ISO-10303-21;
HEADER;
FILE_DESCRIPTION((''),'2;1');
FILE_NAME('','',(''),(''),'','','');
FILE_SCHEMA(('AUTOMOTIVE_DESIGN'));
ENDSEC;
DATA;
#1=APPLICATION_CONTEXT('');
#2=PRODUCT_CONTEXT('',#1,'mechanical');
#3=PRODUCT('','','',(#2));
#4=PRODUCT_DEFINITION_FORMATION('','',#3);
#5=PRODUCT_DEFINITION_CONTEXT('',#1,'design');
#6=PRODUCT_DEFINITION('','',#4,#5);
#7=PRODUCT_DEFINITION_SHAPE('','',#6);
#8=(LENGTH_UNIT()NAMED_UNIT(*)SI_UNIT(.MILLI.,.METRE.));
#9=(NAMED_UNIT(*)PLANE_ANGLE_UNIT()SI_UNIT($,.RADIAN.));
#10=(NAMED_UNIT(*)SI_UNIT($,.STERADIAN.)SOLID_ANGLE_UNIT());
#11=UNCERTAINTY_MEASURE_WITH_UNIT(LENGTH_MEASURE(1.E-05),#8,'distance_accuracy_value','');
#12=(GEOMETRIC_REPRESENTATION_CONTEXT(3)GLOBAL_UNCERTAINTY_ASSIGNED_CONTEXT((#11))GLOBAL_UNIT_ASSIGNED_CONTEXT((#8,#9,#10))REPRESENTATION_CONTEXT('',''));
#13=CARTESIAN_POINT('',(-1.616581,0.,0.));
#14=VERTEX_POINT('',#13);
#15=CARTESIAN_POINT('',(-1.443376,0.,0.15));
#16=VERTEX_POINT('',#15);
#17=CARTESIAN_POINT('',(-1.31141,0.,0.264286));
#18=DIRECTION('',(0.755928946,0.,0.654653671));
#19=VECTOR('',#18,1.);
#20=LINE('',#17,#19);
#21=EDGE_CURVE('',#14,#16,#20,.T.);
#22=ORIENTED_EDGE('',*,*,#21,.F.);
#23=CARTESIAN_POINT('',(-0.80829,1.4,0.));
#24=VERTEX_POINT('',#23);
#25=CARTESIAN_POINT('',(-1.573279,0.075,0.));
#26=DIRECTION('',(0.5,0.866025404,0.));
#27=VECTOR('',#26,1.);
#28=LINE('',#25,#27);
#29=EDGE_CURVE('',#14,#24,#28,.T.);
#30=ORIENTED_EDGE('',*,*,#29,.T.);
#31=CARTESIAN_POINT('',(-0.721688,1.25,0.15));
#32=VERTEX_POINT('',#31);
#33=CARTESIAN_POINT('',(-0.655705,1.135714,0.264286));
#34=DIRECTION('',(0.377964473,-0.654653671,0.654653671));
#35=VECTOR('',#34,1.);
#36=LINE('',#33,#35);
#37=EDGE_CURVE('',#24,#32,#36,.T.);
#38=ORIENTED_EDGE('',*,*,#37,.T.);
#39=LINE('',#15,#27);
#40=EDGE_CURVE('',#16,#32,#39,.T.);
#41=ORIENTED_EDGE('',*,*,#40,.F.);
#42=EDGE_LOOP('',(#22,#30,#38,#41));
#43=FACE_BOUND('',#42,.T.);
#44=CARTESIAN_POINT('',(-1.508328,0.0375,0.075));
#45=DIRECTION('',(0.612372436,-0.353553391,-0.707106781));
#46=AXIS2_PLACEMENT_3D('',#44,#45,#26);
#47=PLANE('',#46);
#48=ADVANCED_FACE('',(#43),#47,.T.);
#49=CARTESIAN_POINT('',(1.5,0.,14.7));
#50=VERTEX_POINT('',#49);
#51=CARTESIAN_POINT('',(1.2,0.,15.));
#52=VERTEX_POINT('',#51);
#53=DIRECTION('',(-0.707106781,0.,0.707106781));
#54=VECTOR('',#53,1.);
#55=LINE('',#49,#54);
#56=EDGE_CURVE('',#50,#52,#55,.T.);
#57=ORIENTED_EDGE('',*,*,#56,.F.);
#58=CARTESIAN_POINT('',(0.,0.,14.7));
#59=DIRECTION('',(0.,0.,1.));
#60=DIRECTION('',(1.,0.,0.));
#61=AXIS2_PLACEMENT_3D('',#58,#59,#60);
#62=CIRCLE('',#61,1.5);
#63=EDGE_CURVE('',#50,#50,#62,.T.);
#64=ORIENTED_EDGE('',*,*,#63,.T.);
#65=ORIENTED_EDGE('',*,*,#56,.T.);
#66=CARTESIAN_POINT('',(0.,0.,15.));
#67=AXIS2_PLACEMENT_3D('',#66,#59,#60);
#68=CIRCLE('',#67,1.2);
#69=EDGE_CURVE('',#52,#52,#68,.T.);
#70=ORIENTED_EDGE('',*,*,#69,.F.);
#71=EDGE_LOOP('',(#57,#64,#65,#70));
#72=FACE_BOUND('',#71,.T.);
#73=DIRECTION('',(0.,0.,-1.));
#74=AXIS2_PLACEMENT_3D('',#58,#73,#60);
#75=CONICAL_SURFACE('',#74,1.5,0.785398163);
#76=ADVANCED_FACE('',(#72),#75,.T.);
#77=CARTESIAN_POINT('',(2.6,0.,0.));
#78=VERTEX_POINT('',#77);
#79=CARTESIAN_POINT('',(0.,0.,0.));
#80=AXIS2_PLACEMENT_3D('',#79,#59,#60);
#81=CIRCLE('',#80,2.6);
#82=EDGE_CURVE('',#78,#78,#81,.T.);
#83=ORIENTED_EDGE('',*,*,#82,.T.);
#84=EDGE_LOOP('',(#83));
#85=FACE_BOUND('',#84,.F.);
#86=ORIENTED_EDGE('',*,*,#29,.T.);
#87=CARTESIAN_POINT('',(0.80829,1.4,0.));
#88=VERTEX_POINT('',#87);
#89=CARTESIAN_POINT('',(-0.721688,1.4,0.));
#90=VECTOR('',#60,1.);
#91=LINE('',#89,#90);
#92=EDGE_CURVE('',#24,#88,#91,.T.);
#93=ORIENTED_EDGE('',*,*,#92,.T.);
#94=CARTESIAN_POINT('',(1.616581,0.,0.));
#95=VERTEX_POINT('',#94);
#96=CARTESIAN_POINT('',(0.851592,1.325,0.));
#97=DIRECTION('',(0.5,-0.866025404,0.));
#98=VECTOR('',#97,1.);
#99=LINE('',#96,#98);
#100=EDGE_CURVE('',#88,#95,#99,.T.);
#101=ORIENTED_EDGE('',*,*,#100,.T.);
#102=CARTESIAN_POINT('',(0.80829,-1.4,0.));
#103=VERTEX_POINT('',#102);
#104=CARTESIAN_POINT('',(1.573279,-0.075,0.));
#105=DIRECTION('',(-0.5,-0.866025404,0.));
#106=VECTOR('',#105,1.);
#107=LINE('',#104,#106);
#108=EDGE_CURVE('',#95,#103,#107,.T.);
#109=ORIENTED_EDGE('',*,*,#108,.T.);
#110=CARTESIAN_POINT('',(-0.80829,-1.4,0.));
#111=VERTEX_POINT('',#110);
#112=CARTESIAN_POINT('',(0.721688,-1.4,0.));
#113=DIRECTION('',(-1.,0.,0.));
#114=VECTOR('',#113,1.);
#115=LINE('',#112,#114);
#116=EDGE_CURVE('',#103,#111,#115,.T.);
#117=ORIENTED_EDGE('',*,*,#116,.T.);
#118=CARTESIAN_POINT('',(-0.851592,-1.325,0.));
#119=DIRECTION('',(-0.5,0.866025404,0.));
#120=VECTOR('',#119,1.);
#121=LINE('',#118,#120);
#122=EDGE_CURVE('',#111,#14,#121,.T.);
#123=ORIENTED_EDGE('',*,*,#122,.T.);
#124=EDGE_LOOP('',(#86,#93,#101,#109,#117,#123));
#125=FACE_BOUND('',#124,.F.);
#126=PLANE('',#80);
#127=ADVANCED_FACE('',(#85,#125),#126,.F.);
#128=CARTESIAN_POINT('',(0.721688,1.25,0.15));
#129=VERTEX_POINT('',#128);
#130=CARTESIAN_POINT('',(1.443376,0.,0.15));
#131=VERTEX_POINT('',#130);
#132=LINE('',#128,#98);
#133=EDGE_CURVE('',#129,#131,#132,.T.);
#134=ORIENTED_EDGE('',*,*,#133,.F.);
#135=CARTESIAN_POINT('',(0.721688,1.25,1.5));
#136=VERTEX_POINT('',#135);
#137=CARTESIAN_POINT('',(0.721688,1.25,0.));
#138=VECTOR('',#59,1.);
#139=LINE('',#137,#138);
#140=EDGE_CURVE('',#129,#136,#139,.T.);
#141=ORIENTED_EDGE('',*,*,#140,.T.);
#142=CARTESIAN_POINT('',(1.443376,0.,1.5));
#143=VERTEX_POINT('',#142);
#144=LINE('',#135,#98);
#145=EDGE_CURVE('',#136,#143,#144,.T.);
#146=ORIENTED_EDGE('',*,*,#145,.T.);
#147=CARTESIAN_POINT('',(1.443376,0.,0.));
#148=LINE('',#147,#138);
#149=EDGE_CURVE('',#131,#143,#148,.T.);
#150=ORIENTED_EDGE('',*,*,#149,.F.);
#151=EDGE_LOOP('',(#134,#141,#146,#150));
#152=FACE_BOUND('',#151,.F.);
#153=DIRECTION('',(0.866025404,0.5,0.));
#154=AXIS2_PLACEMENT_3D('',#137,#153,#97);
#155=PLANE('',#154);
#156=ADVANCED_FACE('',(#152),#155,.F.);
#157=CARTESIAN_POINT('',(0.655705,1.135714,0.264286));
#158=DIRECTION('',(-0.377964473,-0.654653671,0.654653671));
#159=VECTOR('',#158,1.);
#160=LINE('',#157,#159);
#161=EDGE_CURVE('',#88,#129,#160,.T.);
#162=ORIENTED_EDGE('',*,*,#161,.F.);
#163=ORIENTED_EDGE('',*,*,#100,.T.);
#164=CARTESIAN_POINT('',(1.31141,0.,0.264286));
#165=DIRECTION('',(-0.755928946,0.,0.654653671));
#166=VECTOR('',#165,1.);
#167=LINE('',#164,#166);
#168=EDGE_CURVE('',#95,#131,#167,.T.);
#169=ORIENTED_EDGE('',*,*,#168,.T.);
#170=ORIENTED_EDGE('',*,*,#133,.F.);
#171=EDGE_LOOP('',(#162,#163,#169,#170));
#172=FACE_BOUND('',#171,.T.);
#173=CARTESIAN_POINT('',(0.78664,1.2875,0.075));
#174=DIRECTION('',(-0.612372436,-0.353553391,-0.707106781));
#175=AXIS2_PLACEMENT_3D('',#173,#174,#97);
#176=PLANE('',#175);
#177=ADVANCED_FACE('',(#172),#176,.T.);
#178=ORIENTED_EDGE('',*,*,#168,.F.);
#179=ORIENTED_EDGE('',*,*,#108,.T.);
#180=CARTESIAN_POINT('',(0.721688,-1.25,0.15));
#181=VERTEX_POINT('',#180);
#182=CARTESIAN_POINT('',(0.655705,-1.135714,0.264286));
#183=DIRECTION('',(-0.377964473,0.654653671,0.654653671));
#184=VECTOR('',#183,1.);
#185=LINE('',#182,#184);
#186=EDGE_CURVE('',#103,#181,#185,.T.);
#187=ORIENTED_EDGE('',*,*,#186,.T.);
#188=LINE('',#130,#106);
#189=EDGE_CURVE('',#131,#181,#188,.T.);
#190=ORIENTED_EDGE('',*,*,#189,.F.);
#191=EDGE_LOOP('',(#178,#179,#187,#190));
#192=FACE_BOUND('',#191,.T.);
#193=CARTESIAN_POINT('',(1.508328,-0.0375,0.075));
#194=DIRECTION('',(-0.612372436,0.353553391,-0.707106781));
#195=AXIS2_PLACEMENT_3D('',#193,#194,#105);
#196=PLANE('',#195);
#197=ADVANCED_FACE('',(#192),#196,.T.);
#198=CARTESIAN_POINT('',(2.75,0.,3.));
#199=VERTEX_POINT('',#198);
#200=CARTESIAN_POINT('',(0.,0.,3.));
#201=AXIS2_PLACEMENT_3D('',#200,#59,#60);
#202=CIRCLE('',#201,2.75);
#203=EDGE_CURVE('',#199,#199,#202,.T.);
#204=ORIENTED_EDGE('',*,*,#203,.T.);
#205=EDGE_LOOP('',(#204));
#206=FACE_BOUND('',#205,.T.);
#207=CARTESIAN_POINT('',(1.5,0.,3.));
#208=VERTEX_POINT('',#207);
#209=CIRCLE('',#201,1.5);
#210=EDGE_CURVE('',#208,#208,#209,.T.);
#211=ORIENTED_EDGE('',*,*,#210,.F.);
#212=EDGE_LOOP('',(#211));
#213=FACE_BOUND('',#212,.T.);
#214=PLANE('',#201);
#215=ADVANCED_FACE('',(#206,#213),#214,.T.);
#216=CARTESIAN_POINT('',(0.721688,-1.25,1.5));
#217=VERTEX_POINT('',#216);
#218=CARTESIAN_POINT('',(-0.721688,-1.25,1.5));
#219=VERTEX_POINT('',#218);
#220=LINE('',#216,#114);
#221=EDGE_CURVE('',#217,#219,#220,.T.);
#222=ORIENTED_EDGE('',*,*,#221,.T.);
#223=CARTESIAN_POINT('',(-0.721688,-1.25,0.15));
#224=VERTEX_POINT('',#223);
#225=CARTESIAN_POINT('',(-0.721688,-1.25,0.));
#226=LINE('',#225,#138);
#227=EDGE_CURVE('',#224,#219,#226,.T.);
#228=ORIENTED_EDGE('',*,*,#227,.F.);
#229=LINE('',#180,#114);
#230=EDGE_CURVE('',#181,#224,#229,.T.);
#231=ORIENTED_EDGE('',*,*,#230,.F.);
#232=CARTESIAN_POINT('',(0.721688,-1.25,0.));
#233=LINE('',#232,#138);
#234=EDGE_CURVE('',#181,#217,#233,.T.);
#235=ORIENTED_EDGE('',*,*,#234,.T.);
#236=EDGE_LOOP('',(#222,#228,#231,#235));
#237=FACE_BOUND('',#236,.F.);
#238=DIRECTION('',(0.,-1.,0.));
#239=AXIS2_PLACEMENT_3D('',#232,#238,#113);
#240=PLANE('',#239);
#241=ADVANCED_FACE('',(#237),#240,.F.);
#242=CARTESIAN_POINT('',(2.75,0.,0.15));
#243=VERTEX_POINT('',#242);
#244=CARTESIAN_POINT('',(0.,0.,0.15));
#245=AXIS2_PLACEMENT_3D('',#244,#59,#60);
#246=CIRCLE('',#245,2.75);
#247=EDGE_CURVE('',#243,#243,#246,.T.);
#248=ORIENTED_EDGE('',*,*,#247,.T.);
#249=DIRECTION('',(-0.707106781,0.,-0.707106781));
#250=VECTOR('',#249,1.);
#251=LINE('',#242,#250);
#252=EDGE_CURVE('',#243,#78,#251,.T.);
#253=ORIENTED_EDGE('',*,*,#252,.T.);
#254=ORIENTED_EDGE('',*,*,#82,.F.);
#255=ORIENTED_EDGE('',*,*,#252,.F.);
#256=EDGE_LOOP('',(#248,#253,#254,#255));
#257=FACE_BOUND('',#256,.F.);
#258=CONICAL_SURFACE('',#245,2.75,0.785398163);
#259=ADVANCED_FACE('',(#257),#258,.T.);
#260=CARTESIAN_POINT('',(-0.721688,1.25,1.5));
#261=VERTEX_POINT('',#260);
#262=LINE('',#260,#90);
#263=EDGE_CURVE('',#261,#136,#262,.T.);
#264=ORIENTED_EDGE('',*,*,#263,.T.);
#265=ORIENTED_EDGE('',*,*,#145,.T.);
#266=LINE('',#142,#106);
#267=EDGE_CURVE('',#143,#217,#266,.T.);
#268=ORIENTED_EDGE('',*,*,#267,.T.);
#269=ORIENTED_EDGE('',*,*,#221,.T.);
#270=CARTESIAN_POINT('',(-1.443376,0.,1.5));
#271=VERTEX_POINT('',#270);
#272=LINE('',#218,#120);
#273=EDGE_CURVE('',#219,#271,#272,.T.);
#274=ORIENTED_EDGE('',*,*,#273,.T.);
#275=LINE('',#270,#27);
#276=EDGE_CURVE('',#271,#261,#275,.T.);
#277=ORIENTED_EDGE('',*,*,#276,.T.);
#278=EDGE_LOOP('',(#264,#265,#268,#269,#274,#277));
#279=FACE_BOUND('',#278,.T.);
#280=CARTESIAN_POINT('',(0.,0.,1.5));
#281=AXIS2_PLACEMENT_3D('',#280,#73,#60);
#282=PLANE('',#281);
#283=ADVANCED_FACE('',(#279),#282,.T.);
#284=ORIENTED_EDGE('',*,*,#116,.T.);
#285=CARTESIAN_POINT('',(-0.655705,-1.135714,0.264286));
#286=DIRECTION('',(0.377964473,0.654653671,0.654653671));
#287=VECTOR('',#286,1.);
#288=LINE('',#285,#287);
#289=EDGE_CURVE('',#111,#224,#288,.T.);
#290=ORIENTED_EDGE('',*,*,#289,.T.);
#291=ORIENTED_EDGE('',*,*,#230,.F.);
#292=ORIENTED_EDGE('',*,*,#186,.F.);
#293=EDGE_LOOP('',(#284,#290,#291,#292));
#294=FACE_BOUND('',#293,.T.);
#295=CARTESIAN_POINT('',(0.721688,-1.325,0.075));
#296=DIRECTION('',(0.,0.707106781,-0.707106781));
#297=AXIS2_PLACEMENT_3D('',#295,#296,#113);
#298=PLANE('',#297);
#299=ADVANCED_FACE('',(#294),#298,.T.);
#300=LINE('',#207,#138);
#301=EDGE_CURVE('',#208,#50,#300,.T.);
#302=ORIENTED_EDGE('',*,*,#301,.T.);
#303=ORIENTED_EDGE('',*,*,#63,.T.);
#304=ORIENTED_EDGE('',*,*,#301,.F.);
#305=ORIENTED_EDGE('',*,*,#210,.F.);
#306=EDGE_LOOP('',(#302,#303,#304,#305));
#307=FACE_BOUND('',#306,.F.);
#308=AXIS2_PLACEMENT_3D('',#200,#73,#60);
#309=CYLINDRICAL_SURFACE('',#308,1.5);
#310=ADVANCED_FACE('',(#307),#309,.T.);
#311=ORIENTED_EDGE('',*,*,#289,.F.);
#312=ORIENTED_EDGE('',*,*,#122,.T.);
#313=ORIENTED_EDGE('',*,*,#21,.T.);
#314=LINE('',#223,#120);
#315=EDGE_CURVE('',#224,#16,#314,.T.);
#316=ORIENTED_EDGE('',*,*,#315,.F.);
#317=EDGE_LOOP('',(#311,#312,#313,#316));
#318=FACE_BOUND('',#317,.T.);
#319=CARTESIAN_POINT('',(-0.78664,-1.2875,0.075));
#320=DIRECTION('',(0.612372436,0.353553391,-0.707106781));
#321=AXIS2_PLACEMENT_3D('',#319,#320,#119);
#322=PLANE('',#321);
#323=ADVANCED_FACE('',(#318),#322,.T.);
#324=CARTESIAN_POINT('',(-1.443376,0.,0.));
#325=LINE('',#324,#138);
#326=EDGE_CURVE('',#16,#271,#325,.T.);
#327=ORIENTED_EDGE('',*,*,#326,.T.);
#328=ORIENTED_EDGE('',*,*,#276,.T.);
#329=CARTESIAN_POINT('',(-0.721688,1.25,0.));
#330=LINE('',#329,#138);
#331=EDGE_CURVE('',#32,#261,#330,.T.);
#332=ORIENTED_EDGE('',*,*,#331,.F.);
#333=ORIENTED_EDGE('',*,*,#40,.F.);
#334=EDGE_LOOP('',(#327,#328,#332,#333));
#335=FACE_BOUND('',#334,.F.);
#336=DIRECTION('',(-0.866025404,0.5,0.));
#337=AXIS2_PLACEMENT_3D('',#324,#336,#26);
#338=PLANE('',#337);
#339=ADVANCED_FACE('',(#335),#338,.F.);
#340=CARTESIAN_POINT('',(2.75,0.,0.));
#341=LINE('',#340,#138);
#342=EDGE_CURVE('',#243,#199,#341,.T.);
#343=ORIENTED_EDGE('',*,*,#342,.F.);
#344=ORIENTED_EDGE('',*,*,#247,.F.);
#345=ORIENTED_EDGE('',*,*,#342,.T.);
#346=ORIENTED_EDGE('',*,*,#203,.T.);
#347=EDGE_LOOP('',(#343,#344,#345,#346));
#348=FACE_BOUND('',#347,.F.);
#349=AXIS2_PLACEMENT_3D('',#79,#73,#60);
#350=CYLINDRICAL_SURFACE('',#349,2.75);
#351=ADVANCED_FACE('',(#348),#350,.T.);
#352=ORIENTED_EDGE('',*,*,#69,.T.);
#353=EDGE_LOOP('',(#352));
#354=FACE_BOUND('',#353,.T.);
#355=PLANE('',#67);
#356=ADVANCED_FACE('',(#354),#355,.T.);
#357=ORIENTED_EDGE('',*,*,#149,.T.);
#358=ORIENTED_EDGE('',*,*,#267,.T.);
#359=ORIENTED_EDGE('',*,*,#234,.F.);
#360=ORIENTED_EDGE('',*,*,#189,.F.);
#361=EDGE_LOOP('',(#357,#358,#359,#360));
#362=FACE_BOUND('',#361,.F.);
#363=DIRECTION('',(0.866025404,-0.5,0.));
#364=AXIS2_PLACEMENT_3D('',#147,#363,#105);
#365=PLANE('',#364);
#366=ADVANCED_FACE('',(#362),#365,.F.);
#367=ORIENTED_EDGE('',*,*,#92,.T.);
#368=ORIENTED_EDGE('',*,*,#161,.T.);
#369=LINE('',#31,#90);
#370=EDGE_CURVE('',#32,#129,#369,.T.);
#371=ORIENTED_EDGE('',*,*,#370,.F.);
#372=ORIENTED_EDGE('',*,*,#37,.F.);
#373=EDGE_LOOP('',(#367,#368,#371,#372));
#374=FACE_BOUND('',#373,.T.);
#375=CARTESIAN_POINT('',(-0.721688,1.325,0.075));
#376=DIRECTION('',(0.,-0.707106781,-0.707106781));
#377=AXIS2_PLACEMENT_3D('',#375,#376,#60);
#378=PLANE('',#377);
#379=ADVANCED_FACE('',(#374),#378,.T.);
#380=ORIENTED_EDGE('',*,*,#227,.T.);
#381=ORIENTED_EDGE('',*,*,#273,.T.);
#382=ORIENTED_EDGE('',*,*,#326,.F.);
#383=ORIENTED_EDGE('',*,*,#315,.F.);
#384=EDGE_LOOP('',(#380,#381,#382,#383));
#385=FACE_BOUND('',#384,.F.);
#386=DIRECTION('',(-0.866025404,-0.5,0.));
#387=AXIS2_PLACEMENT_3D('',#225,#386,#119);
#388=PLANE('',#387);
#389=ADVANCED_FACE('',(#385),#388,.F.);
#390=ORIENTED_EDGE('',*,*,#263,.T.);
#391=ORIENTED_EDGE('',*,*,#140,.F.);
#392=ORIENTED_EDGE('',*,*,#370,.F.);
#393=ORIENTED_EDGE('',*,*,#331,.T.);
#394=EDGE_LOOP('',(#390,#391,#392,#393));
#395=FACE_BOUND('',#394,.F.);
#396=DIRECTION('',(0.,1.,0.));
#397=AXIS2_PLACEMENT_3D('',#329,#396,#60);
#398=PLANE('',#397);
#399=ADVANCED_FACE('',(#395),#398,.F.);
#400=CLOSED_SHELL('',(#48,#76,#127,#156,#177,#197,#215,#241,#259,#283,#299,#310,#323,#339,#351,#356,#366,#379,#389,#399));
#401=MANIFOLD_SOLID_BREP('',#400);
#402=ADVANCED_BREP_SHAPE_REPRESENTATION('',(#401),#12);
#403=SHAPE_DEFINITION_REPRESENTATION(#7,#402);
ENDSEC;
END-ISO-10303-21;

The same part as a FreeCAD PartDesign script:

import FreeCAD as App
import Part
import Sketcher
from FreeCAD import Vector
Q = App.Units.Quantity


def edges_at(feature, points):
    """Names of the edges that pass closest to the given points."""
    edges = feature.Shape.Edges
    near = lambda p: min(range(len(edges)), key=lambda i: edges[i].distToShape(Part.Vertex(*p))[0])
    return sorted({f"Edge{near(p) + 1}" for p in points})


def add_polygon(sketch, points):
    """Adds a closed chain of lines whose ends are joined by coincident constraints."""
    first, n = sketch.GeometryCount, len(points)
    for a, b in zip(points, points[1:] + points[:1]):
        sketch.addGeometry(Part.LineSegment(App.Vector(*a, 0), App.Vector(*b, 0)), False)
    for i in range(n):
        sketch.addConstraint(Sketcher.Constraint("Coincident", first + i, 2, first + (i + 1) % n, 1))

doc = App.newDocument("Part")
body = doc.addObject("PartDesign::Body", "Body")

# Sketch on XY plane
sketch1 = doc.addObject("Sketcher::SketchObject", "Sketch")
body.addObject(sketch1)
sketch1.AttachmentSupport = (doc.XY_Plane, [""])
sketch1.MapMode = "FlatFace"
sketch1.addGeometry(Part.Circle(Vector(0, 0, 0), Vector(0, 0, 1), 2.75), False)
sketch1.addConstraint([
    Sketcher.Constraint("Coincident", 0, 3, -1, 1),
    Sketcher.Constraint("Diameter", 0, Q("5.5 mm")),
])
pad1 = doc.addObject("PartDesign::Pad", "Pad")
body.addObject(pad1)
pad1.Profile = sketch1
pad1.Length = 3

# Sketch on XY plane
sketch2 = doc.addObject("Sketcher::SketchObject", "Sketch001")
body.addObject(sketch2)
sketch2.AttachmentSupport = (doc.XY_Plane, [""])
sketch2.MapMode = "FlatFace"
add_polygon(sketch2, [(0.721688, -1.25), (-0.721688, -1.25), (-1.443376, 0), (-0.721688, 1.25), (0.721688, 1.25), (1.443376, 0)])  # lines 0-5
sketch2.addConstraint([
    Sketcher.Constraint("Horizontal", 0),
    Sketcher.Constraint("Horizontal", 3),
    Sketcher.Constraint("Symmetric", 0, 2, 3, 2, -1, 1),
    Sketcher.Constraint("Symmetric", 1, 2, 4, 2, -1, 1),
    Sketcher.Constraint("PointOnObject", 1, 2, -1),
    Sketcher.Constraint("Parallel", 2, 5),
    Sketcher.Constraint("Vertical", 0, 2, 2, 2),
    Sketcher.Constraint("Angle", 1, Q("120 deg")),
    Sketcher.Constraint("DistanceY", 0, 2, 2, 2, Q("2.5 mm")),
    Sketcher.Constraint("DistanceX", 0, 2, 0, 1, Q("1.443376 mm")),
])
pocket1 = doc.addObject("PartDesign::Pocket", "Pocket")
body.addObject(pocket1)
pocket1.Profile = sketch2
pocket1.Length = 1.5
pocket1.Reversed = True

# Sketch on XY plane
sketch3 = doc.addObject("Sketcher::SketchObject", "Sketch002")
body.addObject(sketch3)
sketch3.AttachmentSupport = (doc.XY_Plane, [""])
sketch3.MapMode = "FlatFace"
sketch3.AttachmentOffset = App.Placement(Vector(0, 0, 3), App.Rotation())
sketch3.addGeometry(Part.Circle(Vector(0, 0, 0), Vector(0, 0, 1), 1.5), False)
sketch3.addConstraint([
    Sketcher.Constraint("Coincident", 0, 3, -1, 1),
    Sketcher.Constraint("Diameter", 0, Q("3 mm")),
])
pad2 = doc.addObject("PartDesign::Pad", "Pad001")
body.addObject(pad2)
pad2.Profile = sketch3
pad2.Length = 12
doc.recompute()

chamfer = doc.addObject("PartDesign::Chamfer", "Chamfer")
body.addObject(chamfer)
chamfer.Base = (pad2, edges_at(pad2, [
    (-2.75, 0, 0),
    (0, -1.25, 0),
    (1.083, -0.625, 0),
    (1.083, 0.625, 0),
    (0, 1.25, 0),
    (-1.083, -0.625, 0),
    (-1.083, 0.625, 0),
]))
chamfer.Size = 0.15
doc.recompute()

chamfer2 = doc.addObject("PartDesign::Chamfer", "Chamfer001")
body.addObject(chamfer2)
chamfer2.Base = (chamfer, edges_at(chamfer, [(-1.5, 0, 15)]))
chamfer2.Size = 0.3

doc.recompute()
